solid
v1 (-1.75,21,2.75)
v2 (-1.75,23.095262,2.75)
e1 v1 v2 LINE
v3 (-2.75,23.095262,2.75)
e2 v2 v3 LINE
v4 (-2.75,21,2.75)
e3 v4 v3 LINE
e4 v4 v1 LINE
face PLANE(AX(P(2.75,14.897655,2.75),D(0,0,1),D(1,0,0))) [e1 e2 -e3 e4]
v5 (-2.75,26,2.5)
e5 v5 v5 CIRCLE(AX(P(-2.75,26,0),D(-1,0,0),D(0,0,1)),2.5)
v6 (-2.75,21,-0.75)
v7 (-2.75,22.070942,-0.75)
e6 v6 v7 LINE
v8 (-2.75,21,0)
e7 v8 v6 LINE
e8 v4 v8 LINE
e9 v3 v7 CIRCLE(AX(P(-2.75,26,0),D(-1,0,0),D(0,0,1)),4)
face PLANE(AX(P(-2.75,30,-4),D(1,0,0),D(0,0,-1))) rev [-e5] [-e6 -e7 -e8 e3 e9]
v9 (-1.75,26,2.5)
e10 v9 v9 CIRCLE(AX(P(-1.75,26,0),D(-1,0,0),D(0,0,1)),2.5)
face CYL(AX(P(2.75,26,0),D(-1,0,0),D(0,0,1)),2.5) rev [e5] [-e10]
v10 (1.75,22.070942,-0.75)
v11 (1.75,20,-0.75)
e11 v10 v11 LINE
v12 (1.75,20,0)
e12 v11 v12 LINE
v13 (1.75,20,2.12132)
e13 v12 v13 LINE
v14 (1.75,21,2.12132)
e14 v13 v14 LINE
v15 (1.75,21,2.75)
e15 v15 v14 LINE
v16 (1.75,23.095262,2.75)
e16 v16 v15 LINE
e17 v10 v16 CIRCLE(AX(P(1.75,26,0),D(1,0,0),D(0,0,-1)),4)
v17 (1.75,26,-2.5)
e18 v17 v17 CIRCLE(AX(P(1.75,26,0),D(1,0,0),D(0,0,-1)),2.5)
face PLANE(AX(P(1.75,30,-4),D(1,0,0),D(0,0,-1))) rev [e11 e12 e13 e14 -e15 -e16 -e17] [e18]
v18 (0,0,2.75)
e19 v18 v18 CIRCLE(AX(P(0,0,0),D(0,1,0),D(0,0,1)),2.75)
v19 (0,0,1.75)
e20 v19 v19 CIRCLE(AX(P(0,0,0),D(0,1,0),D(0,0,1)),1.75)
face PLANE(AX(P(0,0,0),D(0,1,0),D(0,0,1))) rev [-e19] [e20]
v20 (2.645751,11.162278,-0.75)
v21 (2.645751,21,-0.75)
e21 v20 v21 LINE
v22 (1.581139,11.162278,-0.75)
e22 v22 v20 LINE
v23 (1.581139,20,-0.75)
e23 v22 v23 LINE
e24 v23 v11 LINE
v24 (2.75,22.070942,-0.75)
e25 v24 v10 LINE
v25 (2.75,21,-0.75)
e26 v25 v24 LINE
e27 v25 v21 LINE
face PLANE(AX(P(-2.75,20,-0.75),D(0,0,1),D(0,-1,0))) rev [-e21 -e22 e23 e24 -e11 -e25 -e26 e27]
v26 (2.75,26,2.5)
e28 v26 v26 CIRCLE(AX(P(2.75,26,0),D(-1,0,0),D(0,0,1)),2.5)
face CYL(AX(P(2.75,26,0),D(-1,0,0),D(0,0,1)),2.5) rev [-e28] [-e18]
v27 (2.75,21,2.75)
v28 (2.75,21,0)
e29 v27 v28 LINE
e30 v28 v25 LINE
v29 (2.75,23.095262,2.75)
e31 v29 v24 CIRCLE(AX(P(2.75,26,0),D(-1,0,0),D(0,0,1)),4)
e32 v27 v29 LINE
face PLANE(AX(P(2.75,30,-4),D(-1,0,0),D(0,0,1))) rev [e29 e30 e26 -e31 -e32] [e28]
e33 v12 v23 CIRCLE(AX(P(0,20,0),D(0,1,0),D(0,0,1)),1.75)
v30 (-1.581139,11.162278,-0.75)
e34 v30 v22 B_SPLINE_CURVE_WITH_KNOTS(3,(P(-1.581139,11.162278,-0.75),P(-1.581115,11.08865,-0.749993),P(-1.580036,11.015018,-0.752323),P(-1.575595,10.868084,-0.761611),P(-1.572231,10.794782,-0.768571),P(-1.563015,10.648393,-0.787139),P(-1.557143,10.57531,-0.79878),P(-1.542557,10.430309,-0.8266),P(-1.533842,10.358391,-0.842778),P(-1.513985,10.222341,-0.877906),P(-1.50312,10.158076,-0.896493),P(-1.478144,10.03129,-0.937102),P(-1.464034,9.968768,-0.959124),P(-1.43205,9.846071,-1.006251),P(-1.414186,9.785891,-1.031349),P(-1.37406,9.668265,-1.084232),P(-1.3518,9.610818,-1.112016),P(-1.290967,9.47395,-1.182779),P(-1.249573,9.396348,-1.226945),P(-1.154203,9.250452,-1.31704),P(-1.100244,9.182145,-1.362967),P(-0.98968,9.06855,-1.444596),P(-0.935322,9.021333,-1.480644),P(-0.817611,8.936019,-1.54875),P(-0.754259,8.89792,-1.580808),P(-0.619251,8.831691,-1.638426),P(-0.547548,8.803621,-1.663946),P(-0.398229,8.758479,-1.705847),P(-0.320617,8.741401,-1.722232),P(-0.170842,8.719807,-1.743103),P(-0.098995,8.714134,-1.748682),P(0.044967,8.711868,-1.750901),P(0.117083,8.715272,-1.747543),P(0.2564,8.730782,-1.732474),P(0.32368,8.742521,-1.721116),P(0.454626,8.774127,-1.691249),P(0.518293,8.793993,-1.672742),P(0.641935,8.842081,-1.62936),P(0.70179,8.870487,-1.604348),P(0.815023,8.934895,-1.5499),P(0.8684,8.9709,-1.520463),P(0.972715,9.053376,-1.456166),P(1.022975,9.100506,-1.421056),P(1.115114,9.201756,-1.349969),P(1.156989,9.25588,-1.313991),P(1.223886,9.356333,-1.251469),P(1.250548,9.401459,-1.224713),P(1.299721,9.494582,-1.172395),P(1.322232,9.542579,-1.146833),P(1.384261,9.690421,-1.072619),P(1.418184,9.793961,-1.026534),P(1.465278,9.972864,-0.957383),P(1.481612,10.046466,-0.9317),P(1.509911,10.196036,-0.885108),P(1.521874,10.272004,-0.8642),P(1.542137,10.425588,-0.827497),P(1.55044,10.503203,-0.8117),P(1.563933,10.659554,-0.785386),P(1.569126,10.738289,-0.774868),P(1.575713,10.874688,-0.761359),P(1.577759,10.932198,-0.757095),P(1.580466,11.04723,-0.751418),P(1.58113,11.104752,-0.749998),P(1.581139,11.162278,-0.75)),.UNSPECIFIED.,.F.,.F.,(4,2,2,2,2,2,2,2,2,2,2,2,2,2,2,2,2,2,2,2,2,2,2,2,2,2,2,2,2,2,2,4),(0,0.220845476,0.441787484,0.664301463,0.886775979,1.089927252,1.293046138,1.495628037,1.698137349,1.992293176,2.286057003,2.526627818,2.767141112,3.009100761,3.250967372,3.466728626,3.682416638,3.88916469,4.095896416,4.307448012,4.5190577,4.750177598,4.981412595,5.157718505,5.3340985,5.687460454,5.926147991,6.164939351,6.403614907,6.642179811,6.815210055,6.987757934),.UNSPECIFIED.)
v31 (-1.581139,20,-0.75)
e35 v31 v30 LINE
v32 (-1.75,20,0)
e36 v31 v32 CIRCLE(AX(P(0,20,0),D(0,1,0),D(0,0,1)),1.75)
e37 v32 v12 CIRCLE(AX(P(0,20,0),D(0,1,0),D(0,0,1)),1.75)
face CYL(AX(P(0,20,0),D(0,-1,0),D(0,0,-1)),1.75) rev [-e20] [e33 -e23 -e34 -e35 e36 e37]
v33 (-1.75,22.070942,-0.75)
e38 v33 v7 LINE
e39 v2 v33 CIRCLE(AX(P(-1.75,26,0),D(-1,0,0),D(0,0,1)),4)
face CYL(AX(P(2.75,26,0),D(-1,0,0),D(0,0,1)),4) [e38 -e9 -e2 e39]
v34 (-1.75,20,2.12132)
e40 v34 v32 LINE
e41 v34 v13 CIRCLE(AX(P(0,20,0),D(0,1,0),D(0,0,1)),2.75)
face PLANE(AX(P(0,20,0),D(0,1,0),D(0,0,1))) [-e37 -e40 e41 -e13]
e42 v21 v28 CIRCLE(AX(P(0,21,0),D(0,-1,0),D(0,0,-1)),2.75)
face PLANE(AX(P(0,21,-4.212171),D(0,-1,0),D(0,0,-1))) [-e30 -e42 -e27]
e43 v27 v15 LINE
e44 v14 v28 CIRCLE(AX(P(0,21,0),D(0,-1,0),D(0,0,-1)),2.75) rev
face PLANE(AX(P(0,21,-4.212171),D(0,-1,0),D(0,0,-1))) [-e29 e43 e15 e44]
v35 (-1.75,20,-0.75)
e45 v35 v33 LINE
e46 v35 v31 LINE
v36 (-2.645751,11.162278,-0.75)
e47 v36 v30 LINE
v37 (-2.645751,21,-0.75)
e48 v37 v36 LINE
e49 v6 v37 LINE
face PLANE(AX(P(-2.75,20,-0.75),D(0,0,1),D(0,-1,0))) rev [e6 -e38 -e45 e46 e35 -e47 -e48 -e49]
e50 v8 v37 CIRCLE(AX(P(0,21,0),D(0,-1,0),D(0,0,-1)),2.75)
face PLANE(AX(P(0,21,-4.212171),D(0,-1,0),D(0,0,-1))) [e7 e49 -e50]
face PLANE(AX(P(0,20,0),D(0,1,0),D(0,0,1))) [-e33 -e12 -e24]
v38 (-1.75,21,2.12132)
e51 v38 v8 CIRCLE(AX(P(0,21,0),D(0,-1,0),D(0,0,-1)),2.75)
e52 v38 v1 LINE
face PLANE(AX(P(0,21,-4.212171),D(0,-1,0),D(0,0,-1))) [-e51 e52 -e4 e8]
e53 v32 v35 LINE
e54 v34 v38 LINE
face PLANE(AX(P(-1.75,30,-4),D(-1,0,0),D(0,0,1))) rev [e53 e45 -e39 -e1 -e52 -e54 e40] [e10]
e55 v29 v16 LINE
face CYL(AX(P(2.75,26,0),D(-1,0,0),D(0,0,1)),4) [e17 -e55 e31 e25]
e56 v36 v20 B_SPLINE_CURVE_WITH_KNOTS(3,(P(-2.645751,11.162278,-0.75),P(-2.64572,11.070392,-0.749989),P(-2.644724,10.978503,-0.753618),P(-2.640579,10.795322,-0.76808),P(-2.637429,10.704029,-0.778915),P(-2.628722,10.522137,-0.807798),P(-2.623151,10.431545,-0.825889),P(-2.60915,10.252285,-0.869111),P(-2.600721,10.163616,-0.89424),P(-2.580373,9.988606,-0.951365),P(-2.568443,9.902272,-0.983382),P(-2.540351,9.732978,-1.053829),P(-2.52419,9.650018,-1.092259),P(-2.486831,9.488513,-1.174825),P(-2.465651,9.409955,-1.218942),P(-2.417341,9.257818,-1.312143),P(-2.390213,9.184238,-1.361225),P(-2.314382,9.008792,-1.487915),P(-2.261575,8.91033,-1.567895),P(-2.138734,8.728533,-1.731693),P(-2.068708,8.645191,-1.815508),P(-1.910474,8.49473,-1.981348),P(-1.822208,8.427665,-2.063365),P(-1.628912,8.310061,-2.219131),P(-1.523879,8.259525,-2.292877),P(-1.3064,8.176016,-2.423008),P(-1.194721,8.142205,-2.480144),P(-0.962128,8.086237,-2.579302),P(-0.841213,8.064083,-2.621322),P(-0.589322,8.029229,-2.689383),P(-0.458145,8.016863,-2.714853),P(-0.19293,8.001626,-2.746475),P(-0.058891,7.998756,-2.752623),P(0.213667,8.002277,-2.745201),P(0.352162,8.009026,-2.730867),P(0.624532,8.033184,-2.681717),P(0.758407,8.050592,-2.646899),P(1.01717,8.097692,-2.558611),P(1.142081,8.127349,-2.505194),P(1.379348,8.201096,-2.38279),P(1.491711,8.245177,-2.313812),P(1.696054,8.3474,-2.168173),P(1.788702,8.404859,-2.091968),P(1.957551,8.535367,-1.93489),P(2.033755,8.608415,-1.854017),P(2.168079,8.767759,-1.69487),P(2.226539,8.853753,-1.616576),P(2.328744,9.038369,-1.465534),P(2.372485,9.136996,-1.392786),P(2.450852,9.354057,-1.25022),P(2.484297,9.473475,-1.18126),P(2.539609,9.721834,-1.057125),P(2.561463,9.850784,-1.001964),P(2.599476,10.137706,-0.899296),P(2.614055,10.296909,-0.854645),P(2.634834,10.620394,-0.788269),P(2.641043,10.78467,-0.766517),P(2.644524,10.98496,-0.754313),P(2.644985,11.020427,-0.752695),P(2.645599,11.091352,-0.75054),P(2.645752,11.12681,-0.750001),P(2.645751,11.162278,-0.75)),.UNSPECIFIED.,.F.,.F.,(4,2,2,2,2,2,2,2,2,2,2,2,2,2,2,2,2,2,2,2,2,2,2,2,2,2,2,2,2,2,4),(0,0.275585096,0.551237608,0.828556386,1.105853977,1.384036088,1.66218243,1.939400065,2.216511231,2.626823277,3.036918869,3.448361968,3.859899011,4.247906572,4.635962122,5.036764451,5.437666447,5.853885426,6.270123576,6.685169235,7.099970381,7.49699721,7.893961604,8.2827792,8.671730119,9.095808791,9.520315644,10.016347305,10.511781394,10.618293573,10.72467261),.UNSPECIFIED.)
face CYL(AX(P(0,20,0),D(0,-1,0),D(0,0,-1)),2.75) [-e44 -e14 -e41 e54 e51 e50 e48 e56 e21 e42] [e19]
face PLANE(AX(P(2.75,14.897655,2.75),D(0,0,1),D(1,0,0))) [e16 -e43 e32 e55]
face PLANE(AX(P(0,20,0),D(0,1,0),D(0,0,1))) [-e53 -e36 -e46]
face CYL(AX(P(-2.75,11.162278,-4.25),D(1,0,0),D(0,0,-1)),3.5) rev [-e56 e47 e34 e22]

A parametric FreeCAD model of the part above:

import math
import FreeCAD as App
import Part
import Sketcher
from FreeCAD import Vector
Q = App.Units.Quantity


def add_polygon(sketch, points):
    """Adds a closed chain of lines whose ends are joined by coincident constraints."""
    first, n = sketch.GeometryCount, len(points)
    for a, b in zip(points, points[1:] + points[:1]):
        sketch.addGeometry(Part.LineSegment(App.Vector(*a, 0), App.Vector(*b, 0)), False)
    for i in range(n):
        sketch.addConstraint(Sketcher.Constraint("Coincident", first + i, 2, first + (i + 1) % n, 1))

doc = App.newDocument("Part")
body = doc.addObject("PartDesign::Body", "Body")

# Sketch on XZ plane
sketch1 = body.newObject("Sketcher::SketchObject", "Sketch")
sketch1.AttachmentSupport = (doc.getObject("XZ_Plane"), [""])
sketch1.MapMode = "FlatFace"
sketch1.addGeometry([
    Part.Circle(Vector(0, 0, 0), Vector(0, 0, 1), 2.8),
    Part.Circle(Vector(0, 0, 0), Vector(0, 0, 1), 1.8),
], False)
sketch1.addConstraint([
    Sketcher.Constraint("Coincident", 0, 3, -1, 1),
    Sketcher.Constraint("Coincident", 1, 3, -1, 1),
    Sketcher.Constraint("Diameter", 0, Q("5.5 mm")),
    Sketcher.Constraint("Diameter", 1, Q("3.5 mm")),
])
pad1 = body.newObject("PartDesign::Pad", "Pad")
pad1.Profile = sketch1
pad1.Length = 20
pad1.Reversed = True

# Sketch on YZ plane
sketch2 = body.newObject("Sketcher::SketchObject", "Sketch001")
sketch2.AttachmentSupport = (doc.getObject("YZ_Plane"), [""])
sketch2.MapMode = "FlatFace"
sketch2.addGeometry([
    Part.LineSegment(Vector(20, -0.8, 0), Vector(11.2, -0.8, 0)),
    Part.ArcOfCircle(Part.Circle(Vector(11.2, -4.2, 0), Vector(0, 0, 1), 3.5), math.radians(90), math.radians(155)),
    Part.LineSegment(Vector(8, -2.8, 0), Vector(20, -2.8, 0)),
    Part.LineSegment(Vector(20, -2.8, 0), Vector(20, -0.8, 0)),
], False)
sketch2.addConstraint([
    Sketcher.Constraint("Tangent", 0, 2, 1, 1),
    Sketcher.Constraint("Coincident", 1, 2, 2, 1),
    Sketcher.Constraint("Coincident", 2, 2, 3, 1),
    Sketcher.Constraint("Coincident", 3, 2, 0, 1),
    Sketcher.Constraint("Horizontal", 0),
    Sketcher.Constraint("Horizontal", 2),
    Sketcher.Constraint("Vertical", 3),
    Sketcher.Constraint("Radius", 1, Q("3.5 mm")),
    Sketcher.Constraint("DistanceX", 2, 1, 2, 2, Q("12 mm")),
    Sketcher.Constraint("DistanceY", 3, 1, 3, 2, Q("2 mm")),
    Sketcher.Constraint("DistanceX", -1, 1, 1, 2, Q("8 mm")),
    Sketcher.Constraint("DistanceY", 1, 3, -1, 1, Q("4.25 mm")),
])
pocket1 = body.newObject("PartDesign::Pocket", "Pocket")
pocket1.Profile = sketch2
pocket1.Type = "ThroughAll"
pocket1.Midplane = True

# Sketch on XZ plane
sketch3 = body.newObject("Sketcher::SketchObject", "Sketch002")
sketch3.AttachmentSupport = (doc.getObject("XZ_Plane"), [""])
sketch3.MapMode = "FlatFace"
sketch3.AttachmentOffset = App.Placement(Vector(0, 0, -20), App.Rotation())
add_polygon(sketch3, [(-2.8, -4), (-2.8, 4), (-1.8, 4), (-1.8, -4)])  # lines 0-3
add_polygon(sketch3, [(1.8, -4), (1.8, 4), (2.8, 4), (2.8, -4)])  # lines 4-7
sketch3.addConstraint([
    Sketcher.Constraint("Vertical", 0),
    Sketcher.Constraint("Horizontal", 1),
    Sketcher.Constraint("Vertical", 2),
    Sketcher.Constraint("Horizontal", 3),
    Sketcher.Constraint("Vertical", 4),
    Sketcher.Constraint("Horizontal", 5),
    Sketcher.Constraint("Vertical", 6),
    Sketcher.Constraint("Horizontal", 7),
    Sketcher.Constraint("Symmetric", 2, 2, 4, 2, -1, 1),
    Sketcher.Constraint("Symmetric", 0, 2, 6, 2, -1, 1),
    Sketcher.Constraint("Horizontal", 1, 2, 4, 2),
    Sketcher.Constraint("DistanceX", 1, 1, 1, 2, Q("1 mm")),
    Sketcher.Constraint("DistanceY", 0, 1, 0, 2, Q("8 mm")),
    Sketcher.Constraint("DistanceX", 1, 2, 4, 2, Q("3.5 mm")),
])
pad2 = body.newObject("PartDesign::Pad", "Pad001")
pad2.Profile = sketch3
pad2.Length = 10
pad2.Reversed = True

# Sketch on YZ plane
sketch4 = body.newObject("Sketcher::SketchObject", "Sketch003")
sketch4.AttachmentSupport = (doc.getObject("YZ_Plane"), [""])
sketch4.MapMode = "FlatFace"
sketch4.AttachmentOffset = App.Placement(Vector(0, 0, -2.75), App.Rotation())
sketch4.addGeometry([
    Part.LineSegment(Vector(20, -4, 0), Vector(20, -0.8, 0)),  # 0
    Part.LineSegment(Vector(20, -0.8, 0), Vector(22.1, -0.8, 0)),  # 1
    Part.ArcOfCircle(Part.Circle(Vector(26, 0, 0), Vector(0, 0, 1), 4), math.radians(-169), math.radians(-90)),  # 2
    Part.LineSegment(Vector(26, -4, 0), Vector(20, -4, 0)),  # 3
    Part.LineSegment(Vector(20, 4, 0), Vector(26, 4, 0)),  # 4
    Part.ArcOfCircle(Part.Circle(Vector(26, 0, 0), Vector(0, 0, 1), 4), math.radians(90), math.radians(137)),  # 5
    Part.LineSegment(Vector(23.1, 2.8, 0), Vector(20, 2.8, 0)),  # 6
    Part.LineSegment(Vector(20, 2.8, 0), Vector(20, 4, 0)),  # 7
    Part.LineSegment(Vector(30, 4, 0), Vector(30, 0, 0)),  # 8
    Part.ArcOfCircle(Part.Circle(Vector(26, 0, 0), Vector(0, 0, 1), 4), math.radians(0), math.radians(90)),  # 9
    Part.LineSegment(Vector(26, 4, 0), Vector(30, 4, 0)),  # 10
    Part.LineSegment(Vector(30, -4, 0), Vector(26, -4, 0)),  # 11
    Part.ArcOfCircle(Part.Circle(Vector(26, 0, 0), Vector(0, 0, 1), 4), math.radians(-90), math.radians(0)),  # 12
    Part.LineSegment(Vector(30, 0, 0), Vector(30, -4, 0)),  # 13
    Part.Circle(Vector(26, 0, 0), Vector(0, 0, 1), 2.5),  # 14
], False)
sketch4.addConstraint([
    Sketcher.Constraint("Coincident", 0, 2, 1, 1),
    Sketcher.Constraint("Coincident", 1, 2, 2, 1),
    Sketcher.Constraint("Tangent", 2, 2, 3, 1),
    Sketcher.Constraint("Coincident", 3, 2, 0, 1),
    Sketcher.Constraint("Tangent", 4, 2, 5, 1),
    Sketcher.Constraint("Coincident", 5, 2, 6, 1),
    Sketcher.Constraint("Coincident", 6, 2, 7, 1),
    Sketcher.Constraint("Coincident", 7, 2, 4, 1),
    Sketcher.Constraint("Tangent", 8, 2, 9, 1),
    Sketcher.Constraint("Tangent", 9, 2, 10, 1),
    Sketcher.Constraint("Coincident", 10, 2, 8, 1),
    Sketcher.Constraint("Tangent", 11, 2, 12, 1),
    Sketcher.Constraint("Tangent", 12, 2, 13, 1),
    Sketcher.Constraint("Coincident", 13, 2, 11, 1),
    Sketcher.Constraint("Vertical", 0),
    Sketcher.Constraint("Horizontal", 1),
    Sketcher.Constraint("Horizontal", 3),
    Sketcher.Constraint("Horizontal", 4),
    Sketcher.Constraint("Horizontal", 6),
    Sketcher.Constraint("Vertical", 7),
    Sketcher.Constraint("Vertical", 8),
    Sketcher.Constraint("Horizontal", 10),
    Sketcher.Constraint("Horizontal", 11),
    Sketcher.Constraint("Vertical", 13),
    Sketcher.Constraint("Coincident", 5, 3, 2, 3),
    Sketcher.Constraint("Coincident", 9, 3, 2, 3),
    Sketcher.Constraint("Coincident", 12, 3, 2, 3),
    Sketcher.Constraint("Coincident", 14, 3, 2, 3),
    Sketcher.Constraint("Equal", 2, 5),
    Sketcher.Constraint("Equal", 5, 9),
    Sketcher.Constraint("Equal", 9, 12),
    Sketcher.Constraint("Symmetric", 3, 2, 7, 2, -1),
    Sketcher.Constraint("Diameter", 14, Q("5 mm")),
    Sketcher.Constraint("Radius", 2, Q("4 mm")),
    Sketcher.Constraint("DistanceX", 3, 2, 3, 1, Q("6 mm")),
    Sketcher.Constraint("DistanceX", -1, 1, 2, 3, Q("26 mm")),
    Sketcher.Constraint("DistanceY", 0, 1, 0, 2, Q("3.25 mm")),
    Sketcher.Constraint("DistanceY", 7, 1, 7, 2, Q("1.25 mm")),
])
pocket2 = body.newObject("PartDesign::Pocket", "Pocket001")
pocket2.Profile = sketch4
pocket2.Type = "ThroughAll"
pocket2.Reversed = True

# Sketch on XZ plane
sketch5 = body.newObject("Sketcher::SketchObject", "Sketch004")
sketch5.AttachmentSupport = (doc.getObject("XZ_Plane"), [""])
sketch5.MapMode = "FlatFace"
sketch5.AttachmentOffset = App.Placement(Vector(0, 0, -20), App.Rotation())
sketch5.addGeometry([
    Part.LineSegment(Vector(0, 2.75, 0), Vector(-2.75, 2.75, 0)),  # 0
    Part.LineSegment(Vector(-2.75, 2.75, 0), Vector(-2.75, 0, 0)),  # 1
    Part.ArcOfCircle(Part.Circle(Vector(0, 0, 0), Vector(0, 0, 1), 2.75), math.radians(90), math.radians(180)),  # 2
    Part.LineSegment(Vector(2.75, 0, 0), Vector(2.75, 2.75, 0)),  # 3
    Part.LineSegment(Vector(2.75, 2.75, 0), Vector(1.75, 2.75, 0)),  # 4
    Part.LineSegment(Vector(1.75, 2.75, 0), Vector(1.75, 2.12, 0)),  # 5
    Part.ArcOfCircle(Part.Circle(Vector(0, 0, 0), Vector(0, 0, 1), 2.75), math.radians(0), math.radians(50)),  # 6
    Part.LineSegment(Vector(1.75, 2.75, 0), Vector(0, 2.75, 0)),  # 7
    Part.ArcOfCircle(Part.Circle(Vector(0, 0, 0), Vector(0, 0, 1), 2.75), math.radians(50), math.radians(90)),  # 8
    Part.LineSegment(Vector(1.75, 2.12, 0), Vector(1.75, 2.75, 0)),  # 9
    Part.ArcOfCircle(Part.Circle(Vector(0, 0, 0), Vector(0, 0, 1), 2.75), math.radians(180), math.radians(195.83)),  # 10
    Part.LineSegment(Vector(-2.75, 0, 0), Vector(-2.75, -0.75, 0)),  # 11
    Part.LineSegment(Vector(-2.75, -0.75, 0), Vector(-2.65, -0.75, 0)),  # 12
    Part.LineSegment(Vector(2.75, -0.75, 0), Vector(2.75, 0, 0)),  # 13
    Part.ArcOfCircle(Part.Circle(Vector(0, 0, 0), Vector(0, 0, 1), 2.75), math.radians(-15.83), math.radians(0)),  # 14
    Part.LineSegment(Vector(2.65, -0.75, 0), Vector(2.75, -0.75, 0)),  # 15
], False)
sketch5.addConstraint([
    Sketcher.Constraint("Coincident", 0, 2, 1, 1),
    Sketcher.Constraint("Tangent", 1, 2, 2, 2),
    Sketcher.Constraint("Tangent", 2, 1, 0, 1),
    Sketcher.Constraint("Coincident", 3, 2, 4, 1),
    Sketcher.Constraint("Coincident", 4, 2, 5, 1),
    Sketcher.Constraint("Coincident", 5, 2, 6, 2),
    Sketcher.Constraint("Tangent", 6, 1, 3, 1),
    Sketcher.Constraint("Tangent", 7, 2, 8, 2),
    Sketcher.Constraint("Coincident", 8, 1, 9, 1),
    Sketcher.Constraint("Coincident", 9, 2, 7, 1),
    Sketcher.Constraint("Tangent", 10, 1, 11, 1),
    Sketcher.Constraint("Coincident", 11, 2, 12, 1),
    Sketcher.Constraint("Coincident", 12, 2, 10, 2),
    Sketcher.Constraint("Tangent", 13, 2, 14, 2),
    Sketcher.Constraint("Coincident", 14, 1, 15, 1),
    Sketcher.Constraint("Coincident", 15, 2, 13, 1),
    Sketcher.Constraint("Horizontal", 0),
    Sketcher.Constraint("Vertical", 1),
    Sketcher.Constraint("Vertical", 3),
    Sketcher.Constraint("Horizontal", 4),
    Sketcher.Constraint("Vertical", 5),
    Sketcher.Constraint("Horizontal", 7),
    Sketcher.Constraint("Vertical", 9),
    Sketcher.Constraint("Vertical", 11),
    Sketcher.Constraint("Horizontal", 12),
    Sketcher.Constraint("Vertical", 13),
    Sketcher.Constraint("Horizontal", 15),
    Sketcher.Constraint("Coincident", 2, 3, -1, 1),
    Sketcher.Constraint("Coincident", 6, 3, -1, 1),
    Sketcher.Constraint("Coincident", 8, 3, -1, 1),
    Sketcher.Constraint("Coincident", 10, 3, -1, 1),
    Sketcher.Constraint("Coincident", 14, 3, -1, 1),
    Sketcher.Constraint("Coincident", 8, 1, 5, 2),
    Sketcher.Constraint("Equal", 2, 6),
    Sketcher.Constraint("Equal", 8, 10),
    Sketcher.Constraint("Equal", 10, 14),
    Sketcher.Constraint("Horizontal", 2, 1, 3, 2),
    Sketcher.Constraint("Horizontal", 12, 2, 14, 1),
    Sketcher.Constraint("DistanceX", 4, 2, 4, 1, Q("1 mm")),
    Sketcher.Constraint("Radius", 2, Q("2.75 mm")),
    Sketcher.Constraint("DistanceY", 11, 2, 11, 1, Q("0.75 mm")),
])
pocket3 = body.newObject("PartDesign::Pocket", "Pocket002")
pocket3.Profile = sketch5
pocket3.Length = 1

doc.recompute()
